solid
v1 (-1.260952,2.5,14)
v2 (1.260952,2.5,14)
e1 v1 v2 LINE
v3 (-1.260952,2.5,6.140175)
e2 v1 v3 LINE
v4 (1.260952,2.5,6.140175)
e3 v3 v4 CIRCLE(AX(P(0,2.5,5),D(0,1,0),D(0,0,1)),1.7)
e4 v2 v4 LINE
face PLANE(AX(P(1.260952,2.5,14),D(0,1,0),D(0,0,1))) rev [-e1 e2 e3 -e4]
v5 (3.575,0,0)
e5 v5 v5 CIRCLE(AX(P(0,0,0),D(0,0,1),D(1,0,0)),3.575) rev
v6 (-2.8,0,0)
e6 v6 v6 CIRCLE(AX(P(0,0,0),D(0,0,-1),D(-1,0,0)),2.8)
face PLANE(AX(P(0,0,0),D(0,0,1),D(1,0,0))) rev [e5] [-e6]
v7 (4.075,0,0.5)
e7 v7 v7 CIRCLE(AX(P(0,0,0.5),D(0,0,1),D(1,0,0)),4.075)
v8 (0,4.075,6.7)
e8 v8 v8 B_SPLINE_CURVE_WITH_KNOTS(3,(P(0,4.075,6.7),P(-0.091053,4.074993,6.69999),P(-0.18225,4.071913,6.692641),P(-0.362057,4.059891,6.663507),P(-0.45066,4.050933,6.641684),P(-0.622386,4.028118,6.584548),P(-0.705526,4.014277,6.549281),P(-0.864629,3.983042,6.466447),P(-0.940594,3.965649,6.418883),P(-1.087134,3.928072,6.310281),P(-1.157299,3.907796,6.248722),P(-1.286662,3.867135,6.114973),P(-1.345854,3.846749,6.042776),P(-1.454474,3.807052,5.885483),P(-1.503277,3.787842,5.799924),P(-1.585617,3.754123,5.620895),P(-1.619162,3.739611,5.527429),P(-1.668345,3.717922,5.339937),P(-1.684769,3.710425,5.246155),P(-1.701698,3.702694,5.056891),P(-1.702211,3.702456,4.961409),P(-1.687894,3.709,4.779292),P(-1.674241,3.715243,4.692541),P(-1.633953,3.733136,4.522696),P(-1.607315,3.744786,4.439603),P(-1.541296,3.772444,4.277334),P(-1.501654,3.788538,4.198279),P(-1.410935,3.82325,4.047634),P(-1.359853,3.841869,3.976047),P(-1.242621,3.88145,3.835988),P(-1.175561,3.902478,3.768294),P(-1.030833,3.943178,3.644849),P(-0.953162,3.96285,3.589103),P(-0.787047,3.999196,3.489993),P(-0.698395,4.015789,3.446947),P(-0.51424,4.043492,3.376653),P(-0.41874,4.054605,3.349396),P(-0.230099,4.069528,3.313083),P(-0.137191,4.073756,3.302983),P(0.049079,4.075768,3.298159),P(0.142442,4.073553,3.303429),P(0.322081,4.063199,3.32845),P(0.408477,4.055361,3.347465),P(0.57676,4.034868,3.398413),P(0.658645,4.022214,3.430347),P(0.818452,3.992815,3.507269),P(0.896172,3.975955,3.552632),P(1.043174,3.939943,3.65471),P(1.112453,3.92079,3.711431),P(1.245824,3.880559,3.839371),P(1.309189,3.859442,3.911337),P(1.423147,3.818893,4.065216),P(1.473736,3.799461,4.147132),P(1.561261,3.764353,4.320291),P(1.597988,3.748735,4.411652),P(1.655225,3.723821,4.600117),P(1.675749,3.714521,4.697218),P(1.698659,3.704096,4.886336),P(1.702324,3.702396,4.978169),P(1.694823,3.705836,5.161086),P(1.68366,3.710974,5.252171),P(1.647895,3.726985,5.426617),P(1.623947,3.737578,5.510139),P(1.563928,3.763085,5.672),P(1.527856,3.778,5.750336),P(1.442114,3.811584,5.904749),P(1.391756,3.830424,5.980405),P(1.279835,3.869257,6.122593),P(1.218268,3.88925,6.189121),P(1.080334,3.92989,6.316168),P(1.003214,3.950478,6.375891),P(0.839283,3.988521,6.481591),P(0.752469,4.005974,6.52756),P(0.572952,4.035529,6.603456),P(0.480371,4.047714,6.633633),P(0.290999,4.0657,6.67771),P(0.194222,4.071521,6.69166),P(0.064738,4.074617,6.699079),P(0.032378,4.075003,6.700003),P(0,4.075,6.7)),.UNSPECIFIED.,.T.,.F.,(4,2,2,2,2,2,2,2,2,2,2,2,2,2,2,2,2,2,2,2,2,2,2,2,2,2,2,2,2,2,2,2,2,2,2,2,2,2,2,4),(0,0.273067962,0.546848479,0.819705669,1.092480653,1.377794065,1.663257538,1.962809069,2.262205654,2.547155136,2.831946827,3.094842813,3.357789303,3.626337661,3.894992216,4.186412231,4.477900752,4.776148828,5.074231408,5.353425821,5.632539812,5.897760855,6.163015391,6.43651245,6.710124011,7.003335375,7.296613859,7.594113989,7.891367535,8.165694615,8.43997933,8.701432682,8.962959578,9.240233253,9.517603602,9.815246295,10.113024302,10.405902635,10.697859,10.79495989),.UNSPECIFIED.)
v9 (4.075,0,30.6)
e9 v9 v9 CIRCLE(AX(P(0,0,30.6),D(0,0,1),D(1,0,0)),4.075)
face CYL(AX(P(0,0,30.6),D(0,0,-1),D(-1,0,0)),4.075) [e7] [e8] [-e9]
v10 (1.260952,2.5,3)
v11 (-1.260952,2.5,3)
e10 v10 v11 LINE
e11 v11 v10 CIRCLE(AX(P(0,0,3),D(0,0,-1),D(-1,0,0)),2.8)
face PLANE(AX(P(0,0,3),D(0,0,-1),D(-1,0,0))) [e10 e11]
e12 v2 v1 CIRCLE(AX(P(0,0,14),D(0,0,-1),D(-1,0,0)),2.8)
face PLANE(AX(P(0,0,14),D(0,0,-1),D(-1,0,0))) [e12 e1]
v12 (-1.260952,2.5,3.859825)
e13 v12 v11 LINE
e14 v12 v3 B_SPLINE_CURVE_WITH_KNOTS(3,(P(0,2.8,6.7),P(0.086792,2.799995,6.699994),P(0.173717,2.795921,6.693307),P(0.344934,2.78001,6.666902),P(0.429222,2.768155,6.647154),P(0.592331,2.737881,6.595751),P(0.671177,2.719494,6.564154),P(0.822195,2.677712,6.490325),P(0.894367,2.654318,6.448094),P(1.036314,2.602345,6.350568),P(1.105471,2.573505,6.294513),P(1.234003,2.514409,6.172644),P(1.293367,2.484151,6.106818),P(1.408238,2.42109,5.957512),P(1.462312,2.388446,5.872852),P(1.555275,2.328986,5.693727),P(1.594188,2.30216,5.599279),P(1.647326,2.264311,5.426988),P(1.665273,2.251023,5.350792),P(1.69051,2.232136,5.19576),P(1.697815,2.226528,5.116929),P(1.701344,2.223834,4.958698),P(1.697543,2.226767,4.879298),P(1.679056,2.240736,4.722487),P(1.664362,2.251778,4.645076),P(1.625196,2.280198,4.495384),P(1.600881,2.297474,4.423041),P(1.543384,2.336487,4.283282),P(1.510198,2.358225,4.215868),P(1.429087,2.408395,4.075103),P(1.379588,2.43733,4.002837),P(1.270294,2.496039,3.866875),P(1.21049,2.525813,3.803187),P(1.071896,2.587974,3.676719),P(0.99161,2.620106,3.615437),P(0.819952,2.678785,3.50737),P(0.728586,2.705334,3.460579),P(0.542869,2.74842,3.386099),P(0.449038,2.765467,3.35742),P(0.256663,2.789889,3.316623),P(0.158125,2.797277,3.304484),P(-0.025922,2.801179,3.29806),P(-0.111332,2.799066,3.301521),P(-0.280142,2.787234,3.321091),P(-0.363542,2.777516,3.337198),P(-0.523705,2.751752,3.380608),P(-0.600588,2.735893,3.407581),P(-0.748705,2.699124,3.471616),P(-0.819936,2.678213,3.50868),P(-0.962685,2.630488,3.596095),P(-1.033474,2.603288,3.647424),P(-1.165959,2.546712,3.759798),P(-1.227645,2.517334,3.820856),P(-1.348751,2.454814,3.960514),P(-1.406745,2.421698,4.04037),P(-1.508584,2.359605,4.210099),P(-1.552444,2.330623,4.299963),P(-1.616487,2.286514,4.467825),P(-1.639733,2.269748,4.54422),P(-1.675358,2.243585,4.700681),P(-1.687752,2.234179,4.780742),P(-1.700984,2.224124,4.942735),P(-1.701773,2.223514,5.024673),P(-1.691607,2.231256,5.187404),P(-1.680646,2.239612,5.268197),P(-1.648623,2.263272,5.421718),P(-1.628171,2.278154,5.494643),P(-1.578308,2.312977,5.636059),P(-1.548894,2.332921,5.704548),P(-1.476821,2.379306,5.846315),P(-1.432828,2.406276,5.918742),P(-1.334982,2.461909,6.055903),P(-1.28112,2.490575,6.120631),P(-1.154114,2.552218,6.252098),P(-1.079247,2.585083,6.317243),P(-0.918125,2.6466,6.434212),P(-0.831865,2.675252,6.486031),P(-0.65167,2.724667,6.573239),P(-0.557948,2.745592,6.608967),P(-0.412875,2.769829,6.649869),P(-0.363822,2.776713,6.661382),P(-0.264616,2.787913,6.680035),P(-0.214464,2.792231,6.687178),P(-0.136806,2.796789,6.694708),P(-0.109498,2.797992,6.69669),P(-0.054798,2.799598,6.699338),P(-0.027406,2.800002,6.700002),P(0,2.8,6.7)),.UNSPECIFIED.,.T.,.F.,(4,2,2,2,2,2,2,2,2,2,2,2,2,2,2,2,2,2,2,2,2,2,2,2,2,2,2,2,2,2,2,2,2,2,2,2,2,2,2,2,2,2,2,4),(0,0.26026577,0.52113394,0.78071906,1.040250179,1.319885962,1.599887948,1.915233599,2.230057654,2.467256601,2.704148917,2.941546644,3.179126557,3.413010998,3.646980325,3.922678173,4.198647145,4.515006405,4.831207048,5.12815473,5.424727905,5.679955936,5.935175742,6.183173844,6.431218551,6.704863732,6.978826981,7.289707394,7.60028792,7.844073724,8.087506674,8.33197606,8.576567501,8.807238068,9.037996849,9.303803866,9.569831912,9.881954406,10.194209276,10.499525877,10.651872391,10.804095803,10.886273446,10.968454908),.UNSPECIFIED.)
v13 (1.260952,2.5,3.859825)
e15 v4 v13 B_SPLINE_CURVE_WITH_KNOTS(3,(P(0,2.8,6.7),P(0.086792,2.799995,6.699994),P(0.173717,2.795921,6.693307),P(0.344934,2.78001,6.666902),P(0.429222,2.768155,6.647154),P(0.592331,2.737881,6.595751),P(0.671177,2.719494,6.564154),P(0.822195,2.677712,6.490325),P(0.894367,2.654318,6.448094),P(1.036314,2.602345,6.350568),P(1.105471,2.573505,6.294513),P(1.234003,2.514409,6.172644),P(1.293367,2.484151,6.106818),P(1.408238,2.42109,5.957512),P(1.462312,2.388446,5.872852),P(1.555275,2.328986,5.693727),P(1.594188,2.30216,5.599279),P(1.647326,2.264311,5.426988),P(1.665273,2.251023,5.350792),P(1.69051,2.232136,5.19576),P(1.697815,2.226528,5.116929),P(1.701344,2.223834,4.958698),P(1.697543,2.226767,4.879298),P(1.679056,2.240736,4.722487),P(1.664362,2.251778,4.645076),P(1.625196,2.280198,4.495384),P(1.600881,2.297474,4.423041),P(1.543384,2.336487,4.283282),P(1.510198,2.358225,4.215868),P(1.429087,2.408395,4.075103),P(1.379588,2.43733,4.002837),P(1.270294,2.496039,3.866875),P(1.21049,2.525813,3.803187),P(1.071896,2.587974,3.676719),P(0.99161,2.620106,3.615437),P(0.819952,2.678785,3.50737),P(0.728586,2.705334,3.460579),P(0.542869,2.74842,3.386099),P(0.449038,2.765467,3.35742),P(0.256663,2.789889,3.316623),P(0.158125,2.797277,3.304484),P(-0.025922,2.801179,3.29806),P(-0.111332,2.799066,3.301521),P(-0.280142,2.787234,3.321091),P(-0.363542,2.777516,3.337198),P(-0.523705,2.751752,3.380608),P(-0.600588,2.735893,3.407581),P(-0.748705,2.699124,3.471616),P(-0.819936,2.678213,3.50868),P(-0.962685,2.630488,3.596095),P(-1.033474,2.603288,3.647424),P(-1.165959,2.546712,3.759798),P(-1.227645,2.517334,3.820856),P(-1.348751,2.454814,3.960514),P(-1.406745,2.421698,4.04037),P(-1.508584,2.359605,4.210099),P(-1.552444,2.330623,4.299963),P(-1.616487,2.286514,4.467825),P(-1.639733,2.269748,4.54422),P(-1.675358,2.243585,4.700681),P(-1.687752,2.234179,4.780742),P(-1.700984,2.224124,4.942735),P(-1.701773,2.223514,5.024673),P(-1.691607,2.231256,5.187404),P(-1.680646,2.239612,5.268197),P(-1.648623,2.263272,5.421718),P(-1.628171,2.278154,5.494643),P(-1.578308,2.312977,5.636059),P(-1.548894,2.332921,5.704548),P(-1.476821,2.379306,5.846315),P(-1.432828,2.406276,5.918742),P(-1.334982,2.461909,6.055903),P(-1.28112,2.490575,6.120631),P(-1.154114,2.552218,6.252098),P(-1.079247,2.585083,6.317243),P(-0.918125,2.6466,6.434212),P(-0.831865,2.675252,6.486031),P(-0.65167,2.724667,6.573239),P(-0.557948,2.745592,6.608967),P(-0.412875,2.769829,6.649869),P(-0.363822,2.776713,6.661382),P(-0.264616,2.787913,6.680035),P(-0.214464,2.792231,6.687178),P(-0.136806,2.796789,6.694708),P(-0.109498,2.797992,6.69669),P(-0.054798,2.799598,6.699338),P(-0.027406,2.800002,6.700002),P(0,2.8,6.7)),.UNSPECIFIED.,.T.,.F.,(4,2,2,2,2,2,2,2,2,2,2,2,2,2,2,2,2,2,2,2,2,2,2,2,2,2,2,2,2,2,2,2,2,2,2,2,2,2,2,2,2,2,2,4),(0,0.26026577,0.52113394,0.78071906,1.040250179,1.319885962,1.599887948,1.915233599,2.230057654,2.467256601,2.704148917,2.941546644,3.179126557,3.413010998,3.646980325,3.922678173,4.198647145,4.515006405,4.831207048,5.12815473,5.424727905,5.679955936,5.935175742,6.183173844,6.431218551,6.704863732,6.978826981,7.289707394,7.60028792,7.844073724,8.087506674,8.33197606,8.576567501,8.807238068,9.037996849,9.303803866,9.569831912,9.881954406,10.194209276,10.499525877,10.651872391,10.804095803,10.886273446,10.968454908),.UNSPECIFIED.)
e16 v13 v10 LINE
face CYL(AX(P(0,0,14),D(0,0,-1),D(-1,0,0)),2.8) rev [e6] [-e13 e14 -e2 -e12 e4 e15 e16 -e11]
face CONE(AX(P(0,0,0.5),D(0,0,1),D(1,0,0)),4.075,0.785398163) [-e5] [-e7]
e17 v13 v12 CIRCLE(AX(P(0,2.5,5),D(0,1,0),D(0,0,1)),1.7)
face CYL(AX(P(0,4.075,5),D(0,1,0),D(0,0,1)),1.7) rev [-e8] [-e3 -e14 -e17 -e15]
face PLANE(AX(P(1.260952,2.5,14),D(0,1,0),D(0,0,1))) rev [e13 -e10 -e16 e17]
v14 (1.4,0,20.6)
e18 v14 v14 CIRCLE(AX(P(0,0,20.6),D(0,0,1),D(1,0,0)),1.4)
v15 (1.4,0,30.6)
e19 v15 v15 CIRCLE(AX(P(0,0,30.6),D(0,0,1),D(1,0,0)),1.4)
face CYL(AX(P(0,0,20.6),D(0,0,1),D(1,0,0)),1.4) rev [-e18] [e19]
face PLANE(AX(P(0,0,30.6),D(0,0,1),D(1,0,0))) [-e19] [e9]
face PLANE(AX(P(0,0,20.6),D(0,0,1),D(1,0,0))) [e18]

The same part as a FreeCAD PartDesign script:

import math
import FreeCAD as App
import Part
import Sketcher

V = App.Vector


def edges_at(feature, points):
    """Names of the edges that pass closest to the given points."""
    edges = feature.Shape.Edges
    near = lambda p: min(range(len(edges)), key=lambda i: edges[i].distToShape(Part.Vertex(*p))[0])
    return sorted({f"Edge{near(p) + 1}" for p in points})

doc = App.newDocument("Part")
body = doc.addObject("PartDesign::Body", "Body")

# Sketch on XY plane
sketch1 = doc.addObject("Sketcher::SketchObject", "Sketch")
body.addObject(sketch1)
sketch1.AttachmentSupport = (doc.XY_Plane, [""])
sketch1.MapMode = "FlatFace"
sketch1.addGeometry(Part.Circle(V(0, 0, 0), V(0, 0, 1), 4.075), False)
sketch1.addConstraint(Sketcher.Constraint("Coincident", 0, 3, -1, 1))
sketch1.addConstraint(Sketcher.Constraint("Diameter", 0, 8.15))
pad1 = doc.addObject("PartDesign::Pad", "Pad")
body.addObject(pad1)
pad1.Profile = sketch1
pad1.Length = 30.6

# Sketch on XY plane
sketch2 = doc.addObject("Sketcher::SketchObject", "Sketch001")
body.addObject(sketch2)
sketch2.AttachmentSupport = (doc.XY_Plane, [""])
sketch2.MapMode = "FlatFace"
sketch2.addGeometry(Part.LineSegment(V(-1.260952, 2.5, 0), V(1.260952, 2.5, 0)), False)
sketch2.addGeometry(Part.ArcOfCircle(Part.Circle(V(0, 0, 0), V(0, 0, 1), 2.8), math.radians(116.765501), math.radians(423.234499)), False)
sketch2.addConstraint(Sketcher.Constraint("Coincident", 0, 1, 1, 1))
sketch2.addConstraint(Sketcher.Constraint("Coincident", 1, 2, 0, 2))
sketch2.addConstraint(Sketcher.Constraint("Horizontal", 0))
sketch2.addConstraint(Sketcher.Constraint("Coincident", 1, 3, -1, 1))
sketch2.addConstraint(Sketcher.Constraint("Radius", 1, 2.8))
sketch2.addConstraint(Sketcher.Constraint("DistanceY", -1, 1, 0, 1, 2.5))
pocket1 = doc.addObject("PartDesign::Pocket", "Pocket")
body.addObject(pocket1)
pocket1.Profile = sketch2
pocket1.Length = 14
pocket1.Reversed = True

# Sketch on XY plane
sketch3 = doc.addObject("Sketcher::SketchObject", "Sketch002")
body.addObject(sketch3)
sketch3.AttachmentSupport = (doc.XY_Plane, [""])
sketch3.MapMode = "FlatFace"
sketch3.addGeometry(Part.Circle(V(0, 0, 0), V(0, 0, 1), 2.8), False)
sketch3.addConstraint(Sketcher.Constraint("Coincident", 0, 3, -1, 1))
sketch3.addConstraint(Sketcher.Constraint("Diameter", 0, 5.6))
pocket2 = doc.addObject("PartDesign::Pocket", "Pocket001")
body.addObject(pocket2)
pocket2.Profile = sketch3
pocket2.Length = 3
pocket2.Reversed = True
doc.recompute()

chamfer = doc.addObject("PartDesign::Chamfer", "Chamfer")
body.addObject(chamfer)
chamfer.Base = (pocket2, edges_at(pocket2, [(-4.075, 0, 0)]))
chamfer.Size = 0.5

# Sketch on XY plane
sketch4 = doc.addObject("Sketcher::SketchObject", "Sketch003")
body.addObject(sketch4)
sketch4.AttachmentSupport = (doc.XY_Plane, [""])
sketch4.MapMode = "FlatFace"
sketch4.AttachmentOffset = App.Placement(V(0, 0, 30.6), App.Rotation())
sketch4.addGeometry(Part.Circle(V(0, 0, 0), V(0, 0, 1), 1.4), False)
sketch4.addConstraint(Sketcher.Constraint("Coincident", 0, 3, -1, 1))
sketch4.addConstraint(Sketcher.Constraint("Diameter", 0, 2.8))
pocket3 = doc.addObject("PartDesign::Pocket", "Pocket002")
body.addObject(pocket3)
pocket3.Profile = sketch4
pocket3.Length = 10

# Sketch on XZ plane
sketch5 = doc.addObject("Sketcher::SketchObject", "Sketch004")
body.addObject(sketch5)
sketch5.AttachmentSupport = (doc.XZ_Plane, [""])
sketch5.MapMode = "FlatFace"
sketch5.AttachmentOffset = App.Placement(V(0, 0, -4.075), App.Rotation())
sketch5.addGeometry(Part.Circle(V(0, 5, 0), V(0, 0, 1), 1.7), False)
sketch5.addConstraint(Sketcher.Constraint("PointOnObject", 0, 3, -2))
sketch5.addConstraint(Sketcher.Constraint("Diameter", 0, 3.4))
sketch5.addConstraint(Sketcher.Constraint("DistanceY", -1, 1, 0, 3, 5.0))
doc.recompute()
hole = doc.addObject("PartDesign::Hole", "Hole")
body.addObject(hole)
hole.Profile = sketch5
hole.ThreadType = "None"
hole.Diameter = 3.4
hole.DepthType = "Dimension"
hole.Depth = 4
hole.DrillPoint = "Angled"
hole.DrillPointAngle = 118
hole.Reversed = True

doc.recompute()
